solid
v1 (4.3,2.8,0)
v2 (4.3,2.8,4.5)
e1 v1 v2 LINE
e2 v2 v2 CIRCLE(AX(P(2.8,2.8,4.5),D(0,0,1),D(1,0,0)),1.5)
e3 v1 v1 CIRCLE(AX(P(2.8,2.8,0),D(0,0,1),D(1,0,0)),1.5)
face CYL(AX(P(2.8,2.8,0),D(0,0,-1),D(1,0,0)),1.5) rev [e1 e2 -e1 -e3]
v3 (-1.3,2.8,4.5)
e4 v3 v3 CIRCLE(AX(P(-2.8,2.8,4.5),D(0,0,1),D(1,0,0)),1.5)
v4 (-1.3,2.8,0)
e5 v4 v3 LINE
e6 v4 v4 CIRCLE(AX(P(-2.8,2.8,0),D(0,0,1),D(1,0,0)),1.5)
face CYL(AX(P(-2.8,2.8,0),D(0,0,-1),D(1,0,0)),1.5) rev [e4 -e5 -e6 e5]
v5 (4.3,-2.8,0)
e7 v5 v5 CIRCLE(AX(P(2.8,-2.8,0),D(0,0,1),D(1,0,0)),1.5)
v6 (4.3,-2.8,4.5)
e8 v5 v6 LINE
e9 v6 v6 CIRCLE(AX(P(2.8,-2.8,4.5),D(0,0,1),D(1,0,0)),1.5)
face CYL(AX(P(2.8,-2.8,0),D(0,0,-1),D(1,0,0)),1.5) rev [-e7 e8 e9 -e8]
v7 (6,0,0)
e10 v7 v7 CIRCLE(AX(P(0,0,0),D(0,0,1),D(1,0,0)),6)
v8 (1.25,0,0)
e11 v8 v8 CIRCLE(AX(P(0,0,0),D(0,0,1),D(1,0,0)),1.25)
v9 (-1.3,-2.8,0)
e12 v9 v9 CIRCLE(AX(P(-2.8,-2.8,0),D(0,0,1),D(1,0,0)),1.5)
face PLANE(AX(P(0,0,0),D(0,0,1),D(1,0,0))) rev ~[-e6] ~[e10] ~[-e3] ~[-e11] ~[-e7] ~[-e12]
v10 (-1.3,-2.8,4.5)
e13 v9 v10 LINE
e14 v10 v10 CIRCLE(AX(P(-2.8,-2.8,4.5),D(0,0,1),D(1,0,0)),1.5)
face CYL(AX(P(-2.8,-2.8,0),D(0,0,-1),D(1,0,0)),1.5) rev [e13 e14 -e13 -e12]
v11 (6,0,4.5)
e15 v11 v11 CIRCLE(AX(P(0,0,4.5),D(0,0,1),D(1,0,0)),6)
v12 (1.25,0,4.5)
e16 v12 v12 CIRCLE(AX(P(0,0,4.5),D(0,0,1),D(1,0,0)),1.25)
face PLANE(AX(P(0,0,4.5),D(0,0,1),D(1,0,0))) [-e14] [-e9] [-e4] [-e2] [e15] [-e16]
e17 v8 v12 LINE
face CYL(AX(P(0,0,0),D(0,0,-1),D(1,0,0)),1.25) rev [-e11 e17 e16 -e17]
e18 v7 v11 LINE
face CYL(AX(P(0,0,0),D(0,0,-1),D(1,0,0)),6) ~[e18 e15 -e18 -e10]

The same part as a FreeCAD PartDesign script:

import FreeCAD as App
import Part
import Sketcher
from FreeCAD import Vector
Q = App.Units.Quantity

doc = App.newDocument("Part")
params = doc.addObject("Spreadsheet::Sheet", "Params")
for row, (alias, value) in enumerate([
    ("sketch1_diameter", "12 mm"),
    ("sketch1_diameter2", "3 mm"),
    ("sketch1_diameter3", "2.5 mm"),
    ("pad1_length", "4.5 mm"),
], start=1):
    params.set(f"A{row}", alias)
    params.set(f"B{row}", "=" + value)
    params.setAlias(f"B{row}", alias)

body = doc.addObject("PartDesign::Body", "Body")

# Sketch on XY plane
sketch1 = body.newObject("Sketcher::SketchObject", "Sketch")
sketch1.AttachmentSupport = (doc.getObject("XY_Plane"), [""])
sketch1.MapMode = "FlatFace"
sketch1.addGeometry([
    Part.Circle(Vector(0, 0, 0), Vector(0, 0, 1), 6),  # 0
    Part.Circle(Vector(-2.8, -2.8, 0), Vector(0, 0, 1), 1.5),  # 1
    Part.Circle(Vector(2.8, -2.8, 0), Vector(0, 0, 1), 1.5),  # 2
    Part.Circle(Vector(-2.8, 2.8, 0), Vector(0, 0, 1), 1.5),  # 3
    Part.Circle(Vector(0, 0, 0), Vector(0, 0, 1), 1.2),  # 4
    Part.Circle(Vector(2.8, 2.8, 0), Vector(0, 0, 1), 1.5),  # 5
], False)
sketch1.addConstraint([
    Sketcher.Constraint("Coincident", 0, 3, -1, 1),
    Sketcher.Constraint("Coincident", 4, 3, -1, 1),
    Sketcher.Constraint("Equal", 1, 2),
    Sketcher.Constraint("Equal", 2, 3),
    Sketcher.Constraint("Equal", 3, 5),
    Sketcher.Constraint("Symmetric", 2, 3, 3, 3, -1, 1),
    Sketcher.Constraint("Symmetric", 1, 3, 5, 3, -1, 1),
    Sketcher.Constraint("Symmetric", 1, 3, 2, 3, -2),
    Sketcher.Constraint("Diameter", 0, Q("12 mm")),
    Sketcher.Constraint("Diameter", 1, Q("3 mm")),
    Sketcher.Constraint("Diameter", 4, Q("2.5 mm")),
    Sketcher.Constraint("DistanceX", 1, 3, -1, 1, Q("2.8 mm")),
    Sketcher.Constraint("DistanceY", 1, 3, -1, 1, Q("2.8 mm")),
])
sketch1.setExpression("Constraints[8]", "Params.sketch1_diameter")
sketch1.setExpression("Constraints[9]", "Params.sketch1_diameter2")
sketch1.setExpression("Constraints[10]", "Params.sketch1_diameter3")
pad1 = body.newObject("PartDesign::Pad", "Pad")
pad1.Profile = sketch1
pad1.setExpression("Length", "Params.pad1_length")

doc.recompute()
